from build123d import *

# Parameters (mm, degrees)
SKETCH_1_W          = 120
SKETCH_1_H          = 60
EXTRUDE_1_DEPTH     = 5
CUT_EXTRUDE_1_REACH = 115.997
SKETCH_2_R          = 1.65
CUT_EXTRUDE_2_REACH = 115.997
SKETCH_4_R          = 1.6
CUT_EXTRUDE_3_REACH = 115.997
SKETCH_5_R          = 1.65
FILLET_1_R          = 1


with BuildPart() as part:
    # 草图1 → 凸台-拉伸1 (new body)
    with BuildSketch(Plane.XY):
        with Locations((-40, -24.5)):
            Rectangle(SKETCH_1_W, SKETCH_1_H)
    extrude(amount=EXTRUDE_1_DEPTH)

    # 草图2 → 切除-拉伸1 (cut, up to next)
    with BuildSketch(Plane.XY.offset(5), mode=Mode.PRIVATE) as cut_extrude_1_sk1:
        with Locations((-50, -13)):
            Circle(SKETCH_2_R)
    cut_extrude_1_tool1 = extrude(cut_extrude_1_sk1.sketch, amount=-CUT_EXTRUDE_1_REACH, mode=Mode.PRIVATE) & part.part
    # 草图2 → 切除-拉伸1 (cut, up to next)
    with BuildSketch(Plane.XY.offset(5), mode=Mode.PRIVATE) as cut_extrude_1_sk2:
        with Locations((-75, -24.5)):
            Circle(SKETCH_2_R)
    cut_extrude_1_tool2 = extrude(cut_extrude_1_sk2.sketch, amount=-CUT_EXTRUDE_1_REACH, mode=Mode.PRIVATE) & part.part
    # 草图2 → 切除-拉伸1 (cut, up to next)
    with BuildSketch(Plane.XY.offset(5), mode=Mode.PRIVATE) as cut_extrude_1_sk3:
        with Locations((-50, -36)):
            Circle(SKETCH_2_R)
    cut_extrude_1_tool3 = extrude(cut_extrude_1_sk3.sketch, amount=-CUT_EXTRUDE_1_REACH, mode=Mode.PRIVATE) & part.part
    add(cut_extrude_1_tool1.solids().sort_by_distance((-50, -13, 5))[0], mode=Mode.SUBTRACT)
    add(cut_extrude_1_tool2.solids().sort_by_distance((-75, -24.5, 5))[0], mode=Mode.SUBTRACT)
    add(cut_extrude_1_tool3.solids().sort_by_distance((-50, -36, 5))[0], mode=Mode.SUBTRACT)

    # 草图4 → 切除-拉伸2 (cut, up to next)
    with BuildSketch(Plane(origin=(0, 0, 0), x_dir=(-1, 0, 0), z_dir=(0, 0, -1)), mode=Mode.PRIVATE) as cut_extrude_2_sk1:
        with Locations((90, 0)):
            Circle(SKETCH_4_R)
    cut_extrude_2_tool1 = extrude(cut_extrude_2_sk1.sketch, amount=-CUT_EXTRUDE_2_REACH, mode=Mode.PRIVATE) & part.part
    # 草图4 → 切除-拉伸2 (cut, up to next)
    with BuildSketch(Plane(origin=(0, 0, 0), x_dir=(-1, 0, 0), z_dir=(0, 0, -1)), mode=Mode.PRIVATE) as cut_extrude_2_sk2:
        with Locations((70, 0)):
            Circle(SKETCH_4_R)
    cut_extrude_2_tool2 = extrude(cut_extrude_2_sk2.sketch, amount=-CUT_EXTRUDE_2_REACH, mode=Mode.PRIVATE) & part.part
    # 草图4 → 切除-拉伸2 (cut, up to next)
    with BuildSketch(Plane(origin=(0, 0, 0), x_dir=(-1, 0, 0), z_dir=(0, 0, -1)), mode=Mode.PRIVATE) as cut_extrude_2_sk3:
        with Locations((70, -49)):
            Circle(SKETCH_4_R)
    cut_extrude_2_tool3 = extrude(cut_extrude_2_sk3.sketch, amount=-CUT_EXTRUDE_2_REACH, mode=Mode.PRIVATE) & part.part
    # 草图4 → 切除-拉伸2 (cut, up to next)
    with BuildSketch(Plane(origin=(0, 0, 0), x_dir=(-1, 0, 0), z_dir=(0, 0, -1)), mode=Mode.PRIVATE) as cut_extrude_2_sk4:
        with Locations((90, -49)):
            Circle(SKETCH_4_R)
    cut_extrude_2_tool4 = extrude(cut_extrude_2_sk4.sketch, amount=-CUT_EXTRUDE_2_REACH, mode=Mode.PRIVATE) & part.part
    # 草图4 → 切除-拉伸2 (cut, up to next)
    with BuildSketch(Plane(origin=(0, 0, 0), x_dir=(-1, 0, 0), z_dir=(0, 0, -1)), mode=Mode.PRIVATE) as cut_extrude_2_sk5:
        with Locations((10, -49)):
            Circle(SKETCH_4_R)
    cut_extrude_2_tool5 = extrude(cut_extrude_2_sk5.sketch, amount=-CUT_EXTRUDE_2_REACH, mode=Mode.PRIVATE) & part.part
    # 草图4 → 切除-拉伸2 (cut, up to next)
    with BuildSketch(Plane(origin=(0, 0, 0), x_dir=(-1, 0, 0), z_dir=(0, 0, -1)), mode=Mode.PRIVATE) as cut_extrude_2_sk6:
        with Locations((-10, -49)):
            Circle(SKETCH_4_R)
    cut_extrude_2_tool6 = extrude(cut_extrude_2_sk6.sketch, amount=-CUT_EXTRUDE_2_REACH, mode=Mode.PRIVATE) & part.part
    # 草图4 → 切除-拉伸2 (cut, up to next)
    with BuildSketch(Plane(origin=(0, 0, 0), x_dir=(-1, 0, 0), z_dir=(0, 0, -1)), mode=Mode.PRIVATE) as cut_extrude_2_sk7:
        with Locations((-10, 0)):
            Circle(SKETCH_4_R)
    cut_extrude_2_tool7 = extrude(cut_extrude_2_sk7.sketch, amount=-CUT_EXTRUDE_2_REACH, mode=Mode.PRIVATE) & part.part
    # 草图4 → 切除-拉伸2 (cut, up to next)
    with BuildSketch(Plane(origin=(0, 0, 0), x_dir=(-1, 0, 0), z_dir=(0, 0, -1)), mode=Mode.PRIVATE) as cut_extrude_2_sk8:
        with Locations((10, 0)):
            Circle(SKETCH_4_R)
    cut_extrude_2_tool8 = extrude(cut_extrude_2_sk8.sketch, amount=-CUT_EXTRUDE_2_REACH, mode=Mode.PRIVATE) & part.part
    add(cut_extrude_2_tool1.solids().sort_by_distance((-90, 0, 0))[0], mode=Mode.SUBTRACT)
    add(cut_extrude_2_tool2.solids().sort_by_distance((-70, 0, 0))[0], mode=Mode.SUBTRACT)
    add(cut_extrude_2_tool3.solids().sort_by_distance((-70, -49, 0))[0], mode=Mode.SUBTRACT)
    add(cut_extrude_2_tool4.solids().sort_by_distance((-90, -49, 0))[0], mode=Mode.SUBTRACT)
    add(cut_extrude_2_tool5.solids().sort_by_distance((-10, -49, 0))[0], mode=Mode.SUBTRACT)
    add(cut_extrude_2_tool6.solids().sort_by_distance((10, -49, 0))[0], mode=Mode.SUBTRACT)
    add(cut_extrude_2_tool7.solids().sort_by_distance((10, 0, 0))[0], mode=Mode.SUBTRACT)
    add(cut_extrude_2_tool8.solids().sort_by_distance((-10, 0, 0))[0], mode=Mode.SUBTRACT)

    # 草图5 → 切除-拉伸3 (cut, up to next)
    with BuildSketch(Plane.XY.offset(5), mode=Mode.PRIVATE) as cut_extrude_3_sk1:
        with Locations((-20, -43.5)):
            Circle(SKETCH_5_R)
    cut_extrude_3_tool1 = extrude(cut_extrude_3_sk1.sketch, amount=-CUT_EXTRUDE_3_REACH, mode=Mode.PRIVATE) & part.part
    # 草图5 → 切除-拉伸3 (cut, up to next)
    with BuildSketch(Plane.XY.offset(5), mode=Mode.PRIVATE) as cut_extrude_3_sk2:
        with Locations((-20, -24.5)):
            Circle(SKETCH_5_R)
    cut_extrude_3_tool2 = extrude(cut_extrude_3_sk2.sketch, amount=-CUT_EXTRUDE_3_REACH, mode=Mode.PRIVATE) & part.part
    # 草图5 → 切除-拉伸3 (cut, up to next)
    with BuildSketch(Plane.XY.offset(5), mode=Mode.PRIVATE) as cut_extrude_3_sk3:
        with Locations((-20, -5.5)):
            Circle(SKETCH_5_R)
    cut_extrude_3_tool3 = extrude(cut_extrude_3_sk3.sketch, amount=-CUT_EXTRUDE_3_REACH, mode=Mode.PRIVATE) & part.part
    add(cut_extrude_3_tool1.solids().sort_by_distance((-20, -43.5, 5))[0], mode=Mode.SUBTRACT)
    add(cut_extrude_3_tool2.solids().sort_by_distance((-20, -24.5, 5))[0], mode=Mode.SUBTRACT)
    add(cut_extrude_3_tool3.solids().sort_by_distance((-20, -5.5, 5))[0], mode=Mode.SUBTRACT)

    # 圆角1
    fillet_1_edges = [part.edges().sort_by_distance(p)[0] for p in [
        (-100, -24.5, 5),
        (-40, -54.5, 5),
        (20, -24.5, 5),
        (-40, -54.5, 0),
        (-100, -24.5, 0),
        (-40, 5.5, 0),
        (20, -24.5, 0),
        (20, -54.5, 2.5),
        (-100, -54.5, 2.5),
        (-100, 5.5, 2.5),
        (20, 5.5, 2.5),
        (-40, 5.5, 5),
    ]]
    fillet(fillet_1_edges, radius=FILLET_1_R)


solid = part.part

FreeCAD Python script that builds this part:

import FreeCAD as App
import Part
import Sketcher
from FreeCAD import Vector
Q = App.Units.Quantity


def edges_at(feature, points):
    """Names of the edges that pass closest to the given points."""
    edges = feature.Shape.Edges
    near = lambda p: min(range(len(edges)), key=lambda i: edges[i].distToShape(Part.Vertex(*p))[0])
    return sorted({f"Edge{near(p) + 1}" for p in points})


def add_polygon(sketch, points):
    """Adds a closed chain of lines whose ends are joined by coincident constraints."""
    first, n = sketch.GeometryCount, len(points)
    for a, b in zip(points, points[1:] + points[:1]):
        sketch.addGeometry(Part.LineSegment(App.Vector(*a, 0), App.Vector(*b, 0)), False)
    for i in range(n):
        sketch.addConstraint(Sketcher.Constraint("Coincident", first + i, 2, first + (i + 1) % n, 1))

doc = App.newDocument("Part")
params = doc.addObject("Spreadsheet::Sheet", "Params")
for row, (alias, value) in enumerate([
    ("sketch1_width", "120 mm"),
    ("sketch1_height", "60 mm"),
    ("pad1_length", "5 mm"),
    ("sketch2_diameter", "3.3 mm"),
    ("sketch3_diameter", "3.3 mm"),
    ("sketch4_diameter", "3.3 mm"),
    ("sketch5_diameter", "3.2 mm"),
    ("sketch6_diameter", "3.2 mm"),
    ("sketch7_diameter", "3.2 mm"),
    ("sketch8_diameter", "3.2 mm"),
    ("sketch9_diameter", "3.2 mm"),
    ("sketch10_diameter", "3.2 mm"),
    ("sketch11_diameter", "3.2 mm"),
    ("sketch12_diameter", "3.2 mm"),
    ("sketch13_diameter", "3.3 mm"),
    ("sketch14_diameter", "3.3 mm"),
    ("sketch15_diameter", "3.3 mm"),
    ("fillet_radius", "1 mm"),
], start=1):
    params.set(f"A{row}", alias)
    params.set(f"B{row}", "=" + value)
    params.setAlias(f"B{row}", alias)

body = doc.addObject("PartDesign::Body", "Body")

sketch1 = body.newObject("Sketcher::SketchObject", "Sketch")
sketch1.AttachmentSupport = (doc.getObject("XY_Plane"), [""])
sketch1.MapMode = "FlatFace"
add_polygon(sketch1, [(-100, 6), (-100, -54), (20, -54), (20, 6)])
sketch1.addConstraint([
    Sketcher.Constraint("Vertical", 0),
    Sketcher.Constraint("Horizontal", 1),
    Sketcher.Constraint("Vertical", 2),
    Sketcher.Constraint("Horizontal", 3),
    Sketcher.Constraint("DistanceX", 1, 1, 1, 2, Q("120 mm")),
    Sketcher.Constraint("DistanceY", 0, 2, 0, 1, Q("60 mm")),
    Sketcher.Constraint("DistanceX", 0, 2, -1, 1, Q("100 mm")),
    Sketcher.Constraint("DistanceY", 0, 2, -1, 1, Q("54.5 mm")),
])
sketch1.setExpression("Constraints[8]", "Params.sketch1_width")
sketch1.setExpression("Constraints[9]", "Params.sketch1_height")
pad1 = body.newObject("PartDesign::Pad", "Pad")
pad1.Profile = sketch1
pad1.setExpression("Length", "Params.pad1_length")

sketch2 = body.newObject("Sketcher::SketchObject", "Sketch001")
sketch2.AttachmentSupport = (doc.getObject("XY_Plane"), [""])
sketch2.MapMode = "FlatFace"
sketch2.AttachmentOffset = App.Placement(Vector(0, 0, 5), App.Rotation())
sketch2.addGeometry(Part.Circle(Vector(-50, -13, 0), Vector(0, 0, 1), 1.6), False)
sketch2.addConstraint([
    Sketcher.Constraint("Diameter", 0, Q("3.3 mm")),
    Sketcher.Constraint("DistanceX", 0, 3, -1, 1, Q("50 mm")),
    Sketcher.Constraint("DistanceY", 0, 3, -1, 1, Q("13 mm")),
])
sketch2.setExpression("Constraints[0]", "Params.sketch2_diameter")
pocket1 = body.newObject("PartDesign::Pocket", "Pocket")
pocket1.Profile = sketch2
pocket1.Type = "UpToFirst"

sketch3 = body.newObject("Sketcher::SketchObject", "Sketch002")
sketch3.AttachmentSupport = (doc.getObject("XY_Plane"), [""])
sketch3.MapMode = "FlatFace"
sketch3.AttachmentOffset = App.Placement(Vector(0, 0, 5), App.Rotation())
sketch3.addGeometry(Part.Circle(Vector(-75, -24.5, 0), Vector(0, 0, 1), 1.6), False)
sketch3.addConstraint([
    Sketcher.Constraint("Diameter", 0, Q("3.3 mm")),
    Sketcher.Constraint("DistanceX", 0, 3, -1, 1, Q("75 mm")),
    Sketcher.Constraint("DistanceY", 0, 3, -1, 1, Q("24.5 mm")),
])
sketch3.setExpression("Constraints[0]", "Params.sketch3_diameter")
pocket2 = body.newObject("PartDesign::Pocket", "Pocket001")
pocket2.Profile = sketch3
pocket2.Type = "UpToFirst"

sketch4 = body.newObject("Sketcher::SketchObject", "Sketch003")
sketch4.AttachmentSupport = (doc.getObject("XY_Plane"), [""])
sketch4.MapMode = "FlatFace"
sketch4.AttachmentOffset = App.Placement(Vector(0, 0, 5), App.Rotation())
sketch4.addGeometry(Part.Circle(Vector(-50, -36, 0), Vector(0, 0, 1), 1.6), False)
sketch4.addConstraint([
    Sketcher.Constraint("Diameter", 0, Q("3.3 mm")),
    Sketcher.Constraint("DistanceX", 0, 3, -1, 1, Q("50 mm")),
    Sketcher.Constraint("DistanceY", 0, 3, -1, 1, Q("36 mm")),
])
sketch4.setExpression("Constraints[0]", "Params.sketch4_diameter")
pocket3 = body.newObject("PartDesign::Pocket", "Pocket002")
pocket3.Profile = sketch4
pocket3.Type = "UpToFirst"

sketch5 = body.newObject("Sketcher::SketchObject", "Sketch004")
sketch5.AttachmentSupport = (doc.getObject("XY_Plane"), [""])
sketch5.MapMode = "FlatFace"
sketch5.addGeometry(Part.Circle(Vector(-90, 0, 0), Vector(0, 0, 1), 1.6), False)
sketch5.addConstraint([
    Sketcher.Constraint("PointOnObject", 0, 3, -1),
    Sketcher.Constraint("Diameter", 0, Q("3.2 mm")),
    Sketcher.Constraint("DistanceX", 0, 3, -1, 1, Q("90 mm")),
])
sketch5.setExpression("Constraints[1]", "Params.sketch5_diameter")
pocket4 = body.newObject("PartDesign::Pocket", "Pocket003")
pocket4.Profile = sketch5
pocket4.Type = "UpToFirst"
pocket4.Reversed = True

sketch6 = body.newObject("Sketcher::SketchObject", "Sketch005")
sketch6.AttachmentSupport = (doc.getObject("XY_Plane"), [""])
sketch6.MapMode = "FlatFace"
sketch6.addGeometry(Part.Circle(Vector(-70, 0, 0), Vector(0, 0, 1), 1.6), False)
sketch6.addConstraint([
    Sketcher.Constraint("PointOnObject", 0, 3, -1),
    Sketcher.Constraint("Diameter", 0, Q("3.2 mm")),
    Sketcher.Constraint("DistanceX", 0, 3, -1, 1, Q("70 mm")),
])
sketch6.setExpression("Constraints[1]", "Params.sketch6_diameter")
pocket5 = body.newObject("PartDesign::Pocket", "Pocket004")
pocket5.Profile = sketch6
pocket5.Type = "UpToFirst"
pocket5.Reversed = True

sketch7 = body.newObject("Sketcher::SketchObject", "Sketch006")
sketch7.AttachmentSupport = (doc.getObject("XY_Plane"), [""])
sketch7.MapMode = "FlatFace"
sketch7.addGeometry(Part.Circle(Vector(-70, -49, 0), Vector(0, 0, 1), 1.6), False)
sketch7.addConstraint([
    Sketcher.Constraint("Diameter", 0, Q("3.2 mm")),
    Sketcher.Constraint("DistanceX", 0, 3, -1, 1, Q("70 mm")),
    Sketcher.Constraint("DistanceY", 0, 3, -1, 1, Q("49 mm")),
])
sketch7.setExpression("Constraints[0]", "Params.sketch7_diameter")
pocket6 = body.newObject("PartDesign::Pocket", "Pocket005")
pocket6.Profile = sketch7
pocket6.Type = "UpToFirst"
pocket6.Reversed = True

sketch8 = body.newObject("Sketcher::SketchObject", "Sketch007")
sketch8.AttachmentSupport = (doc.getObject("XY_Plane"), [""])
sketch8.MapMode = "FlatFace"
sketch8.addGeometry(Part.Circle(Vector(-90, -49, 0), Vector(0, 0, 1), 1.6), False)
sketch8.addConstraint([
    Sketcher.Constraint("Diameter", 0, Q("3.2 mm")),
    Sketcher.Constraint("DistanceX", 0, 3, -1, 1, Q("90 mm")),
    Sketcher.Constraint("DistanceY", 0, 3, -1, 1, Q("49 mm")),
])
sketch8.setExpression("Constraints[0]", "Params.sketch8_diameter")
pocket7 = body.newObject("PartDesign::Pocket", "Pocket006")
pocket7.Profile = sketch8
pocket7.Type = "UpToFirst"
pocket7.Reversed = True

sketch9 = body.newObject("Sketcher::SketchObject", "Sketch008")
sketch9.AttachmentSupport = (doc.getObject("XY_Plane"), [""])
sketch9.MapMode = "FlatFace"
sketch9.addGeometry(Part.Circle(Vector(-10, -49, 0), Vector(0, 0, 1), 1.6), False)
sketch9.addConstraint([
    Sketcher.Constraint("Diameter", 0, Q("3.2 mm")),
    Sketcher.Constraint("DistanceX", 0, 3, -1, 1, Q("10 mm")),
    Sketcher.Constraint("DistanceY", 0, 3, -1, 1, Q("49 mm")),
])
sketch9.setExpression("Constraints[0]", "Params.sketch9_diameter")
pocket8 = body.newObject("PartDesign::Pocket", "Pocket007")
pocket8.Profile = sketch9
pocket8.Type = "UpToFirst"
pocket8.Reversed = True

sketch10 = body.newObject("Sketcher::SketchObject", "Sketch009")
sketch10.AttachmentSupport = (doc.getObject("XY_Plane"), [""])
sketch10.MapMode = "FlatFace"
sketch10.addGeometry(Part.Circle(Vector(10, -49, 0), Vector(0, 0, 1), 1.6), False)
sketch10.addConstraint([
    Sketcher.Constraint("Diameter", 0, Q("3.2 mm")),
    Sketcher.Constraint("DistanceX", -1, 1, 0, 3, Q("10 mm")),
    Sketcher.Constraint("DistanceY", 0, 3, -1, 1, Q("49 mm")),
])
sketch10.setExpression("Constraints[0]", "Params.sketch10_diameter")
pocket9 = body.newObject("PartDesign::Pocket", "Pocket008")
pocket9.Profile = sketch10
pocket9.Type = "UpToFirst"
pocket9.Reversed = True

sketch11 = body.newObject("Sketcher::SketchObject", "Sketch010")
sketch11.AttachmentSupport = (doc.getObject("XY_Plane"), [""])
sketch11.MapMode = "FlatFace"
sketch11.addGeometry(Part.Circle(Vector(10, 0, 0), Vector(0, 0, 1), 1.6), False)
sketch11.addConstraint([
    Sketcher.Constraint("PointOnObject", 0, 3, -1),
    Sketcher.Constraint("Diameter", 0, Q("3.2 mm")),
    Sketcher.Constraint("DistanceX", -1, 1, 0, 3, Q("10 mm")),
])
sketch11.setExpression("Constraints[1]", "Params.sketch11_diameter")
pocket10 = body.newObject("PartDesign::Pocket", "Pocket009")
pocket10.Profile = sketch11
pocket10.Type = "UpToFirst"
pocket10.Reversed = True

sketch12 = body.newObject("Sketcher::SketchObject", "Sketch011")
sketch12.AttachmentSupport = (doc.getObject("XY_Plane"), [""])
sketch12.MapMode = "FlatFace"
sketch12.addGeometry(Part.Circle(Vector(-10, 0, 0), Vector(0, 0, 1), 1.6), False)
sketch12.addConstraint([
    Sketcher.Constraint("PointOnObject", 0, 3, -1),
    Sketcher.Constraint("Diameter", 0, Q("3.2 mm")),
    Sketcher.Constraint("DistanceX", 0, 3, -1, 1, Q("10 mm")),
])
sketch12.setExpression("Constraints[1]", "Params.sketch12_diameter")
pocket11 = body.newObject("PartDesign::Pocket", "Pocket010")
pocket11.Profile = sketch12
pocket11.Type = "UpToFirst"
pocket11.Reversed = True

sketch13 = body.newObject("Sketcher::SketchObject", "Sketch012")
sketch13.AttachmentSupport = (doc.getObject("XY_Plane"), [""])
sketch13.MapMode = "FlatFace"
sketch13.AttachmentOffset = App.Placement(Vector(0, 0, 5), App.Rotation())
sketch13.addGeometry(Part.Circle(Vector(-20, -43.5, 0), Vector(0, 0, 1), 1.6), False)
sketch13.addConstraint([
    Sketcher.Constraint("Diameter", 0, Q("3.3 mm")),
    Sketcher.Constraint("DistanceX", 0, 3, -1, 1, Q("20 mm")),
    Sketcher.Constraint("DistanceY", 0, 3, -1, 1, Q("43.5 mm")),
])
sketch13.setExpression("Constraints[0]", "Params.sketch13_diameter")
pocket12 = body.newObject("PartDesign::Pocket", "Pocket011")
pocket12.Profile = sketch13
pocket12.Type = "UpToFirst"

sketch14 = body.newObject("Sketcher::SketchObject", "Sketch013")
sketch14.AttachmentSupport = (doc.getObject("XY_Plane"), [""])
sketch14.MapMode = "FlatFace"
sketch14.AttachmentOffset = App.Placement(Vector(0, 0, 5), App.Rotation())
sketch14.addGeometry(Part.Circle(Vector(-20, -24.5, 0), Vector(0, 0, 1), 1.6), False)
sketch14.addConstraint([
    Sketcher.Constraint("Diameter", 0, Q("3.3 mm")),
    Sketcher.Constraint("DistanceX", 0, 3, -1, 1, Q("20 mm")),
    Sketcher.Constraint("DistanceY", 0, 3, -1, 1, Q("24.5 mm")),
])
sketch14.setExpression("Constraints[0]", "Params.sketch14_diameter")
pocket13 = body.newObject("PartDesign::Pocket", "Pocket012")
pocket13.Profile = sketch14
pocket13.Type = "UpToFirst"

sketch15 = body.newObject("Sketcher::SketchObject", "Sketch014")
sketch15.AttachmentSupport = (doc.getObject("XY_Plane"), [""])
sketch15.MapMode = "FlatFace"
sketch15.AttachmentOffset = App.Placement(Vector(0, 0, 5), App.Rotation())
sketch15.addGeometry(Part.Circle(Vector(-20, -5.5, 0), Vector(0, 0, 1), 1.6), False)
sketch15.addConstraint([
    Sketcher.Constraint("Diameter", 0, Q("3.3 mm")),
    Sketcher.Constraint("DistanceX", 0, 3, -1, 1, Q("20 mm")),
    Sketcher.Constraint("DistanceY", 0, 3, -1, 1, Q("5.5 mm")),
])
sketch15.setExpression("Constraints[0]", "Params.sketch15_diameter")
pocket14 = body.newObject("PartDesign::Pocket", "Pocket013")
pocket14.Profile = sketch15
pocket14.Type = "UpToFirst"
doc.recompute()

fillet = body.newObject("PartDesign::Fillet", "Fillet")
fillet.Base = (pocket14, edges_at(pocket14, [
    (-100, -24.5, 5),
    (-40, -54.5, 5),
    (20, -24.5, 5),
    (-40, -54.5, 0),
    (-100, -24.5, 0),
    (-40, 5.5, 0),
    (20, -24.5, 0),
    (20, -54.5, 2.5),
    (-100, -54.5, 2.5),
    (-100, 5.5, 2.5),
    (20, 5.5, 2.5),
    (-40, 5.5, 5),
]))
fillet.setExpression("Radius", "Params.fillet_radius")

doc.recompute()
